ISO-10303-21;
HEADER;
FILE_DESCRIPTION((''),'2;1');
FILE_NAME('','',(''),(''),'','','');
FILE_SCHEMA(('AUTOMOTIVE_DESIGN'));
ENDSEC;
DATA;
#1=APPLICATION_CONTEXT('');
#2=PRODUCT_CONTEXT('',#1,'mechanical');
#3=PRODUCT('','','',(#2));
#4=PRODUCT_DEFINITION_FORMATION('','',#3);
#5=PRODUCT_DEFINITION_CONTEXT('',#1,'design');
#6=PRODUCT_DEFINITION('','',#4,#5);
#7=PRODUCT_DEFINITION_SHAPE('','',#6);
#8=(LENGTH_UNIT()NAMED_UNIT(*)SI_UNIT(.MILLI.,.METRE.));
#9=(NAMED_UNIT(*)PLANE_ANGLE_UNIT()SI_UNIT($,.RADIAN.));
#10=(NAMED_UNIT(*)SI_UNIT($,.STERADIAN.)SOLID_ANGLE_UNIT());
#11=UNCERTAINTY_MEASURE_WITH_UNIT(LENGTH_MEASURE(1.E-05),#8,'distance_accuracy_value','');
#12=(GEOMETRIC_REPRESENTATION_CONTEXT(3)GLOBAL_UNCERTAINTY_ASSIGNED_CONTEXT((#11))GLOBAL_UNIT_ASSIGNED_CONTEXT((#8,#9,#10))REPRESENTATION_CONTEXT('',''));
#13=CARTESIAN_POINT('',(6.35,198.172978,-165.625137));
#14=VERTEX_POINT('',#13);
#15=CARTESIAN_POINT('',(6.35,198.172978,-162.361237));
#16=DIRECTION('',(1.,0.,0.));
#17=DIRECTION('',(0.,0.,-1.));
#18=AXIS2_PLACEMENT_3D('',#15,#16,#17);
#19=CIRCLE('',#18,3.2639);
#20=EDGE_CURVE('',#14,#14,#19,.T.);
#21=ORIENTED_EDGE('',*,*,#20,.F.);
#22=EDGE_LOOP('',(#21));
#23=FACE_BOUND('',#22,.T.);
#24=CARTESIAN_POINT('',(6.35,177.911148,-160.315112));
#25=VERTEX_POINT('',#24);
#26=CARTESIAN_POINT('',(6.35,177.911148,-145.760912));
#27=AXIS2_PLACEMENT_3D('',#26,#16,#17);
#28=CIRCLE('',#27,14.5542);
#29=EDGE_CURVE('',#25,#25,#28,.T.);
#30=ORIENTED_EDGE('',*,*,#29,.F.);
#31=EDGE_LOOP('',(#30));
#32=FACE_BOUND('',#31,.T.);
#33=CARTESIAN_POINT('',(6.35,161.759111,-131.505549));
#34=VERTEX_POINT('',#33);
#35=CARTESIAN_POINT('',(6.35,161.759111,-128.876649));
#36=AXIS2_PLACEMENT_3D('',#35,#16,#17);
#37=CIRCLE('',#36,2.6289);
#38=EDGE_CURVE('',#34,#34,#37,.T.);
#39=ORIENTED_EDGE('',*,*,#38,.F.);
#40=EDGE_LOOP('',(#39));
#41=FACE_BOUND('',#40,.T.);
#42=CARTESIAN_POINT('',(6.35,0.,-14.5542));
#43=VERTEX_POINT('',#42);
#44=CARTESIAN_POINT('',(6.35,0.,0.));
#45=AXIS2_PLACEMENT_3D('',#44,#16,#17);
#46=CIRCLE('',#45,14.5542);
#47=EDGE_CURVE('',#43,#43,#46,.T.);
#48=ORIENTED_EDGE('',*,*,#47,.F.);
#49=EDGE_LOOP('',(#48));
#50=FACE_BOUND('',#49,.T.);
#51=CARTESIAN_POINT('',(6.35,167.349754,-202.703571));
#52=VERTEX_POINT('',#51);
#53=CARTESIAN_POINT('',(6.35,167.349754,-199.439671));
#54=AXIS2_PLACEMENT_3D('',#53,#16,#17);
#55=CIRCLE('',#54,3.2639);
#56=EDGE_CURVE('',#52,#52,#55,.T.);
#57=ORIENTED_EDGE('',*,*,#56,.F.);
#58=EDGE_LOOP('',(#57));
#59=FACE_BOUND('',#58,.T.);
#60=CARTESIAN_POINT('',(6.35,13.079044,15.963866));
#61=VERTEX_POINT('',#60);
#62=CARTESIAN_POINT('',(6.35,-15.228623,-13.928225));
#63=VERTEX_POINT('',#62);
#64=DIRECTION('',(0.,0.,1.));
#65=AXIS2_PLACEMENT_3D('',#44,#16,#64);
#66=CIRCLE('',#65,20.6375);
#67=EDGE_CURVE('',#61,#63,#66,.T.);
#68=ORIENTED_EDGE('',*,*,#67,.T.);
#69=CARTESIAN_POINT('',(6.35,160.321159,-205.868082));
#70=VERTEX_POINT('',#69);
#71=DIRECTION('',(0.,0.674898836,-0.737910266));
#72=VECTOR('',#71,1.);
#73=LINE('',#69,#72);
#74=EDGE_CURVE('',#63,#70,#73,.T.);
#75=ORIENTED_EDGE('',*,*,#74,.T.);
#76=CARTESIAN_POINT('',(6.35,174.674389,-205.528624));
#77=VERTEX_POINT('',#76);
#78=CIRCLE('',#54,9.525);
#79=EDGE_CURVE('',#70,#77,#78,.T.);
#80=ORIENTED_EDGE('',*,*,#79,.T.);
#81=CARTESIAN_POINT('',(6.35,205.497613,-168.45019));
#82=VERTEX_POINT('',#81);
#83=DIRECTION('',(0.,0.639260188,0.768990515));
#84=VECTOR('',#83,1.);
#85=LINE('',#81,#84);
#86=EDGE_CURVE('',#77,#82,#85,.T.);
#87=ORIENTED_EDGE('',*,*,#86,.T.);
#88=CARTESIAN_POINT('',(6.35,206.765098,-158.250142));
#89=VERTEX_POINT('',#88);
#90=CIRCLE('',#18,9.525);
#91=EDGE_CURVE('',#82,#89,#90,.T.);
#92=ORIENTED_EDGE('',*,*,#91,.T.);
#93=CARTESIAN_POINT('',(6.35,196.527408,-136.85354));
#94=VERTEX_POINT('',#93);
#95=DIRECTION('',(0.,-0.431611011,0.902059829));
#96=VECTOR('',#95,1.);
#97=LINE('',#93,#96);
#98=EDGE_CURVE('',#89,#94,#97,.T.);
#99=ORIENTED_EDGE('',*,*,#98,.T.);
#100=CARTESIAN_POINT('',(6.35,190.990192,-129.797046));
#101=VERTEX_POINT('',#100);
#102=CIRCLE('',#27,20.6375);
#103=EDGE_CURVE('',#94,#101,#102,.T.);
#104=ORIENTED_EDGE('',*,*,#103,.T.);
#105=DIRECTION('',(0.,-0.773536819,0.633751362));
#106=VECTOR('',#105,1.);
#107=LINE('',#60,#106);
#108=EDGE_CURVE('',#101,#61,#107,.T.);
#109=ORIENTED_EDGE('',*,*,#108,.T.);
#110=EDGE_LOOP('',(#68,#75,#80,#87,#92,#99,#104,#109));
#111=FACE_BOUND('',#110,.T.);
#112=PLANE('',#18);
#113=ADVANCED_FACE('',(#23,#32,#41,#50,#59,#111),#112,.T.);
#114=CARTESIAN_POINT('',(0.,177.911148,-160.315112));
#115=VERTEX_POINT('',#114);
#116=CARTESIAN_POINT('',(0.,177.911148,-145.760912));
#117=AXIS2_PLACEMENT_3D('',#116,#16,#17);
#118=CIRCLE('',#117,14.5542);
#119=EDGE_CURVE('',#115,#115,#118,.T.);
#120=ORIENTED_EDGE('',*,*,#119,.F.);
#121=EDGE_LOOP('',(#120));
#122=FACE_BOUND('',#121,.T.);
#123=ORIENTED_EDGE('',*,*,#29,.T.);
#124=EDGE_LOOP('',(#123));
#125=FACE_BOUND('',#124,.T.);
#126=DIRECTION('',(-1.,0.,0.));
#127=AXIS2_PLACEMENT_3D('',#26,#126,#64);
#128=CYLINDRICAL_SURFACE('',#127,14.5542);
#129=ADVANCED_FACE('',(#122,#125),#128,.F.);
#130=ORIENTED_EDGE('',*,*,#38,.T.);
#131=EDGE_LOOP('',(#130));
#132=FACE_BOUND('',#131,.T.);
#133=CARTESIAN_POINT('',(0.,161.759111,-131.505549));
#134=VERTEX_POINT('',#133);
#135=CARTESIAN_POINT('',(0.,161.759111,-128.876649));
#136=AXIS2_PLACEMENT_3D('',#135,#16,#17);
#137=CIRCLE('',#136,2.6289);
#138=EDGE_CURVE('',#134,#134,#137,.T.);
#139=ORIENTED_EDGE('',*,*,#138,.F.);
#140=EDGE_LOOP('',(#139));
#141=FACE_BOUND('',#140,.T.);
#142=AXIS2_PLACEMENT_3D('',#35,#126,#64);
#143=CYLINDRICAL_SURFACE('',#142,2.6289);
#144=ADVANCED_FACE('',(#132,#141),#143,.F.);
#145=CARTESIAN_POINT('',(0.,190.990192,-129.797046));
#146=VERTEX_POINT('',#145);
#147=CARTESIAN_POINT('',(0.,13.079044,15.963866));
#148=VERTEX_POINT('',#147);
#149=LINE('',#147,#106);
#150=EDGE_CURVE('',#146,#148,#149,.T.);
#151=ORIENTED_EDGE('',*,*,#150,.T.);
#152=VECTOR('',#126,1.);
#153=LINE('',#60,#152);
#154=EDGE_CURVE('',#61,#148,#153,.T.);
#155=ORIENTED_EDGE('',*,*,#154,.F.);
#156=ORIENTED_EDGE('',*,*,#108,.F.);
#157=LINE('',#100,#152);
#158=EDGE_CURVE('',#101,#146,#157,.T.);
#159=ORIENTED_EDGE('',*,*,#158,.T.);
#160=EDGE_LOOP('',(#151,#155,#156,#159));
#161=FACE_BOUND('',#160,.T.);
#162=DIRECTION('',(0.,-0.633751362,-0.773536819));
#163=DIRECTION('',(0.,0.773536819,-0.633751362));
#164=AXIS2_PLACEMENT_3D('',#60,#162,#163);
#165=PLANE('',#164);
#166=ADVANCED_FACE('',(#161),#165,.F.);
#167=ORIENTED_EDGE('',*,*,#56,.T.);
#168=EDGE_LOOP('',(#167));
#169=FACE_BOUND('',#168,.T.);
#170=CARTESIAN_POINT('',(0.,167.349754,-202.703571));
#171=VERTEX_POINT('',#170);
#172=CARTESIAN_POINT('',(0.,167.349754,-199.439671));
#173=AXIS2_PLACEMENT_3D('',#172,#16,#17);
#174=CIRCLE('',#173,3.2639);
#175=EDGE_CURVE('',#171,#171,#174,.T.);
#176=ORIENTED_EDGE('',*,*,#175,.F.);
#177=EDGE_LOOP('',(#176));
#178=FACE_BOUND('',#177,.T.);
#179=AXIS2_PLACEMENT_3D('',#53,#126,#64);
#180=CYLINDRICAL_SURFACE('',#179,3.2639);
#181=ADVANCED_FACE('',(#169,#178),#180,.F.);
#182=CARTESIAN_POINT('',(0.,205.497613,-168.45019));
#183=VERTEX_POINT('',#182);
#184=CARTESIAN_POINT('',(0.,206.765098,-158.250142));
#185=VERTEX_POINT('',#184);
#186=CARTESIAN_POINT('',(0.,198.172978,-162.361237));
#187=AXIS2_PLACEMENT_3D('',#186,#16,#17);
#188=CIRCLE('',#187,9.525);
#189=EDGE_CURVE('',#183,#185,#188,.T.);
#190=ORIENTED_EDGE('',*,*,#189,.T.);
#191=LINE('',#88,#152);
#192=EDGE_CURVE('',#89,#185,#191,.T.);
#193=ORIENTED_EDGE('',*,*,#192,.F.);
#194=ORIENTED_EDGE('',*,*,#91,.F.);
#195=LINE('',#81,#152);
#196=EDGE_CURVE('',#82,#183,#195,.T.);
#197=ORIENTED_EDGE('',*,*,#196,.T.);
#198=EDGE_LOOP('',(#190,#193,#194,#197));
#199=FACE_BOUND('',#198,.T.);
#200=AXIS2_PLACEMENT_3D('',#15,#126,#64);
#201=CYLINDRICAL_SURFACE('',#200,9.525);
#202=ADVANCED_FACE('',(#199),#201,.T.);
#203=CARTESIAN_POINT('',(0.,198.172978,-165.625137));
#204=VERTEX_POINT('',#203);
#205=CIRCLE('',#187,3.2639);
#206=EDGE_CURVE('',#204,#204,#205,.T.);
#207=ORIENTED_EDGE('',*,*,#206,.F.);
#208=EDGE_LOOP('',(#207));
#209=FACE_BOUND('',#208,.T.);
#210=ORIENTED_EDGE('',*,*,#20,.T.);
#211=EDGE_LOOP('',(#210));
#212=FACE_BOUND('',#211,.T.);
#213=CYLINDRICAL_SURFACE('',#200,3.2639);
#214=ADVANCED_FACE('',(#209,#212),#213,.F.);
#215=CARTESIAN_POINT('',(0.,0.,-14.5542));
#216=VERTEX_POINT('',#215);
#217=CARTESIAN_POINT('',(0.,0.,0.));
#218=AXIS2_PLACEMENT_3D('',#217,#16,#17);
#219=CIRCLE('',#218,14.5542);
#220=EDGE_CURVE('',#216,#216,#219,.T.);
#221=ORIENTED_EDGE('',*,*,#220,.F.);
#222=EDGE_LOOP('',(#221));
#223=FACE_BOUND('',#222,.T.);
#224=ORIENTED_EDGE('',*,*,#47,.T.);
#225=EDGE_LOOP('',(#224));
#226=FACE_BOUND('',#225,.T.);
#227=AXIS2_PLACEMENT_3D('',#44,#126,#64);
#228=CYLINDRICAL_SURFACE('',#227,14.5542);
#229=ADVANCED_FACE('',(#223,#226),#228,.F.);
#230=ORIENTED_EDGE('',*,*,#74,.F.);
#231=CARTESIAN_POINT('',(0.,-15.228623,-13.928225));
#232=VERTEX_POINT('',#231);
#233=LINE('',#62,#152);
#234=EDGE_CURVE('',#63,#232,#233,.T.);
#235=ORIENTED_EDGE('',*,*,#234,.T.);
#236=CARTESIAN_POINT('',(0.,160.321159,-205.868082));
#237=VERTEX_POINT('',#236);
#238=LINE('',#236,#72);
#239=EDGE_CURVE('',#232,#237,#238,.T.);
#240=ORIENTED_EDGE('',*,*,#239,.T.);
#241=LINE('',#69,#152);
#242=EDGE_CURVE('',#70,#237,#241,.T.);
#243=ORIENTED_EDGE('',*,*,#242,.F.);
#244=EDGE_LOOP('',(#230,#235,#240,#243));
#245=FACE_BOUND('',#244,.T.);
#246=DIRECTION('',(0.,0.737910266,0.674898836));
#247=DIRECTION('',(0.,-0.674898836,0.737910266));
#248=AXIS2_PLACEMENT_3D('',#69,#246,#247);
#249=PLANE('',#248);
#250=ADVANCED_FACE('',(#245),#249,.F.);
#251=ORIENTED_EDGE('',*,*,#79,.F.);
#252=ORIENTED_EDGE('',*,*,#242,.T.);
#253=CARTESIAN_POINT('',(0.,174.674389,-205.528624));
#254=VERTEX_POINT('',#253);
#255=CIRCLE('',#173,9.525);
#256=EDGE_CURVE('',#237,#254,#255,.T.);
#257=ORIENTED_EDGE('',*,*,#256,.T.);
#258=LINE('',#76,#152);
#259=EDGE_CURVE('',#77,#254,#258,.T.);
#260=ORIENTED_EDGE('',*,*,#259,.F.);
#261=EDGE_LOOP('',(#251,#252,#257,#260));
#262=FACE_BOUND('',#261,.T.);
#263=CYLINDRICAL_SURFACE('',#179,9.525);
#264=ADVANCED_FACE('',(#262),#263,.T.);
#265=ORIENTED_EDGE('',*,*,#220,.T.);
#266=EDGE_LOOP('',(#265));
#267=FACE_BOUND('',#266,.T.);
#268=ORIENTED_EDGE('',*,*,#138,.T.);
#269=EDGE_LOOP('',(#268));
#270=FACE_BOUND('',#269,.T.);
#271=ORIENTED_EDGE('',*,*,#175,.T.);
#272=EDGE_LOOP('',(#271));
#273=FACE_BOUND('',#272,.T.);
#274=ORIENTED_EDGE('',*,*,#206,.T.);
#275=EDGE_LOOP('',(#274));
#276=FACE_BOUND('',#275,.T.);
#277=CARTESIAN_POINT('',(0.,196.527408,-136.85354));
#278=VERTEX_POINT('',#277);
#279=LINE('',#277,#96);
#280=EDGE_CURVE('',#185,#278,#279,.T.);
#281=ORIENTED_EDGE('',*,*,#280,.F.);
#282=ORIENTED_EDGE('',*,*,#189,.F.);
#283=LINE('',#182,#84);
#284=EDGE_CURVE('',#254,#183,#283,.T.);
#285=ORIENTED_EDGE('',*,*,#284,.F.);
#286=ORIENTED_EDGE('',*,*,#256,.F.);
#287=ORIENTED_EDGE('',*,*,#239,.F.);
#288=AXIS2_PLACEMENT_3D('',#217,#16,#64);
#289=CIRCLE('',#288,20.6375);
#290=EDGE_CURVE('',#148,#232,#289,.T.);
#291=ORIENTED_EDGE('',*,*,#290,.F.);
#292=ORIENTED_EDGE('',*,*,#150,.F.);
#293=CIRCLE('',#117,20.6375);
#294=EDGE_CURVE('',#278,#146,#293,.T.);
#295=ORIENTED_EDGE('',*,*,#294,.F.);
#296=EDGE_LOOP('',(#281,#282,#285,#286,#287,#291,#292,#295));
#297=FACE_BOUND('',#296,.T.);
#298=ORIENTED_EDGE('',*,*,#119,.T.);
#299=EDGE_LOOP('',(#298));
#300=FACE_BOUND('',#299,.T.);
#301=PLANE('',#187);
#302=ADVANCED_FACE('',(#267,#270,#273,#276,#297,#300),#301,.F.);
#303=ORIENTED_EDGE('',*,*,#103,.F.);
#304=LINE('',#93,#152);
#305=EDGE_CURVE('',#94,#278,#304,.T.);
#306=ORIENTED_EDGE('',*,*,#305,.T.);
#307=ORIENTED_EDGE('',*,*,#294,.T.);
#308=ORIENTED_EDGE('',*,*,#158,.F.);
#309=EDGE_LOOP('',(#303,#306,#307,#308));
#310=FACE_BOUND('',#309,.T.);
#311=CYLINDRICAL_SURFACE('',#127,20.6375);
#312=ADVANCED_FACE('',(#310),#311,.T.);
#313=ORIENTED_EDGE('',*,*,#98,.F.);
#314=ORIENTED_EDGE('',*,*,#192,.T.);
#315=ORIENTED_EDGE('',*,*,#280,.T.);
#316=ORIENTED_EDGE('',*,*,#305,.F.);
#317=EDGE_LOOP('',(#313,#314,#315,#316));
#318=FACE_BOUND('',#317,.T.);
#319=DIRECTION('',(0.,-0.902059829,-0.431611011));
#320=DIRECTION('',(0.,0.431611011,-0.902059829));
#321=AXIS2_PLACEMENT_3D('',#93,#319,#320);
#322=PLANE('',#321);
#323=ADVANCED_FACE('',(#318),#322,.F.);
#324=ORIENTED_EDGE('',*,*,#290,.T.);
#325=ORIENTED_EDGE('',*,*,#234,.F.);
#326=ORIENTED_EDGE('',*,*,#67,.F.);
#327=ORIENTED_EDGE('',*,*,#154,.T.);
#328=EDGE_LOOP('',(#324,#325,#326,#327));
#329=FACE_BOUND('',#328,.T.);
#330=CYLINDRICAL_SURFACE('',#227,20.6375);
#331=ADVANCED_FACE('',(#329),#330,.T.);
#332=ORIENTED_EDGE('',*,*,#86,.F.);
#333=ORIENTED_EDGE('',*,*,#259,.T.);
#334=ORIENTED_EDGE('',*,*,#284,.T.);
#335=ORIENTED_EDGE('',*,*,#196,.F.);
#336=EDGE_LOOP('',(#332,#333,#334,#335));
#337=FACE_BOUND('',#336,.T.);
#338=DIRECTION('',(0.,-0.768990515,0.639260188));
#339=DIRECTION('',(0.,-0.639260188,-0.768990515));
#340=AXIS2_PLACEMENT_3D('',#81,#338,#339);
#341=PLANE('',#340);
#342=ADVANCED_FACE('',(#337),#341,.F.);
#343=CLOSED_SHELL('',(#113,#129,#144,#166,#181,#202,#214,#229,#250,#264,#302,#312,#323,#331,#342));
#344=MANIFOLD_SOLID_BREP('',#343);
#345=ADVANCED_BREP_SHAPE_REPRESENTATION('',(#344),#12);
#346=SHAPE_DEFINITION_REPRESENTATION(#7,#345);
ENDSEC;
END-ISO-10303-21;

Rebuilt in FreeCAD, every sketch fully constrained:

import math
import FreeCAD as App
import Part
import Sketcher
Q = App.Units.Quantity

doc = App.newDocument("Part")
params = doc.addObject("Spreadsheet::Sheet", "Params")
for row, (alias, value) in enumerate([
    ("sketch1_diameter", "1.146 in"),
    ("sketch1_diameter2", "0.257 in"),
    ("sketch1_diameter3", "0.207 in"),
    ("sketch1_radius", "0.8125 in"),
    ("sketch1_radius2", "0.375 in"),
    ("pad1_length", "0.25 in"),
], start=1):
    params.set(f"A{row}", alias)
    params.set(f"B{row}", "=" + value)
    params.setAlias(f"B{row}", alias)

body = doc.addObject("PartDesign::Body", "Body")

# Sketch on YZ plane
sketch1 = doc.addObject("Sketcher::SketchObject", "Sketch")
body.addObject(sketch1)
sketch1.AttachmentSupport = (doc.YZ_Plane, [""])
sketch1.MapMode = "FlatFace"
sketch1.addGeometry(Part.LineSegment(App.Vector(190.990192, -129.797046, 0), App.Vector(13.079044, 15.963866, 0)), False)
sketch1.addGeometry(Part.ArcOfCircle(Part.Circle(App.Vector(0, 0, 0), App.Vector(0, 0, 1), 20.6375), math.radians(50.672563), math.radians(222.446295)), False)
sketch1.addGeometry(Part.LineSegment(App.Vector(-15.228623, -13.928225, 0), App.Vector(160.321159, -205.868082, 0)), False)
sketch1.addGeometry(Part.ArcOfCircle(Part.Circle(App.Vector(167.349754, -199.439671, 0), App.Vector(0, 0, 1), 9.525), math.radians(-137.553705), math.radians(-39.736676)), False)
sketch1.addGeometry(Part.LineSegment(App.Vector(174.674389, -205.528624, 0), App.Vector(205.497613, -168.45019, 0)), False)
sketch1.addGeometry(Part.ArcOfCircle(Part.Circle(App.Vector(198.172978, -162.361237, 0), App.Vector(0, 0, 1), 9.525), math.radians(-39.736676), math.radians(25.569842)), False)
sketch1.addGeometry(Part.LineSegment(App.Vector(206.765098, -158.250142, 0), App.Vector(196.527408, -136.85354, 0)), False)
sketch1.addGeometry(Part.ArcOfCircle(Part.Circle(App.Vector(177.911148, -145.760912, 0), App.Vector(0, 0, 1), 20.6375), math.radians(25.569842), math.radians(50.672563)), False)
sketch1.addGeometry(Part.Circle(App.Vector(0, 0, 0), App.Vector(0, 0, 1), 14.5542), False)
sketch1.addGeometry(Part.Circle(App.Vector(167.349754, -199.439671, 0), App.Vector(0, 0, 1), 3.2639), False)
sketch1.addGeometry(Part.Circle(App.Vector(198.172978, -162.361237, 0), App.Vector(0, 0, 1), 3.2639), False)
sketch1.addGeometry(Part.Circle(App.Vector(161.759111, -128.876649, 0), App.Vector(0, 0, 1), 2.6289), False)
sketch1.addGeometry(Part.Circle(App.Vector(177.911148, -145.760912, 0), App.Vector(0, 0, 1), 14.5542), False)
sketch1.addConstraint(Sketcher.Constraint("Tangent", 0, 2, 1, 1))
sketch1.addConstraint(Sketcher.Constraint("Tangent", 1, 2, 2, 1))
sketch1.addConstraint(Sketcher.Constraint("Tangent", 2, 2, 3, 1))
sketch1.addConstraint(Sketcher.Constraint("Tangent", 3, 2, 4, 1))
sketch1.addConstraint(Sketcher.Constraint("Tangent", 4, 2, 5, 1))
sketch1.addConstraint(Sketcher.Constraint("Tangent", 5, 2, 6, 1))
sketch1.addConstraint(Sketcher.Constraint("Tangent", 6, 2, 7, 1))
sketch1.addConstraint(Sketcher.Constraint("Tangent", 7, 2, 0, 1))
sketch1.addConstraint(Sketcher.Constraint("Coincident", 1, 3, -1, 1))
sketch1.addConstraint(Sketcher.Constraint("Coincident", 8, 3, -1, 1))
sketch1.addConstraint(Sketcher.Constraint("Coincident", 9, 3, 3, 3))
sketch1.addConstraint(Sketcher.Constraint("Coincident", 10, 3, 5, 3))
sketch1.addConstraint(Sketcher.Constraint("Coincident", 12, 3, 7, 3))
sketch1.addConstraint(Sketcher.Constraint("Equal", 3, 5))
sketch1.addConstraint(Sketcher.Constraint("Equal", 1, 7))
sketch1.addConstraint(Sketcher.Constraint("Equal", 9, 10))
sketch1.addConstraint(Sketcher.Constraint("Equal", 8, 12))
sketch1.addConstraint(Sketcher.Constraint("Diameter", 8, Q("1.146 in")))
sketch1.addConstraint(Sketcher.Constraint("Diameter", 9, Q("0.257 in")))
sketch1.addConstraint(Sketcher.Constraint("Diameter", 11, Q("0.207 in")))
sketch1.addConstraint(Sketcher.Constraint("Radius", 1, Q("0.8125 in")))
sketch1.addConstraint(Sketcher.Constraint("Radius", 3, Q("0.375 in")))
sketch1.addConstraint(Sketcher.Constraint("Distance", 0, Q("9.055 in")))
sketch1.addConstraint(Sketcher.Constraint("DistanceY", 3, 3, -1, 1, 199.439671))
sketch1.addConstraint(Sketcher.Constraint("DistanceX", -1, 1, 11, 3, 161.759111))
sketch1.addConstraint(Sketcher.Constraint("DistanceY", 11, 3, -1, 1, 128.876649))
sketch1.addConstraint(Sketcher.Constraint("DistanceX", -1, 1, 2, 2, 160.321159))
sketch1.addConstraint(Sketcher.Constraint("DistanceX", -1, 1, 3, 2, 174.674389))
sketch1.addConstraint(Sketcher.Constraint("DistanceY", 4, 2, -1, 1, 168.45019))
sketch1.addConstraint(Sketcher.Constraint("DistanceY", 5, 2, -1, 1, 158.250142))
sketch1.setExpression("Constraints[17]", "Params.sketch1_diameter")
sketch1.setExpression("Constraints[18]", "Params.sketch1_diameter2")
sketch1.setExpression("Constraints[19]", "Params.sketch1_diameter3")
sketch1.setExpression("Constraints[20]", "Params.sketch1_radius")
sketch1.setExpression("Constraints[21]", "Params.sketch1_radius2")
pad1 = doc.addObject("PartDesign::Pad", "Pad")
body.addObject(pad1)
pad1.Profile = sketch1
pad1.setExpression("Length", "Params.pad1_length")

doc.recompute()
